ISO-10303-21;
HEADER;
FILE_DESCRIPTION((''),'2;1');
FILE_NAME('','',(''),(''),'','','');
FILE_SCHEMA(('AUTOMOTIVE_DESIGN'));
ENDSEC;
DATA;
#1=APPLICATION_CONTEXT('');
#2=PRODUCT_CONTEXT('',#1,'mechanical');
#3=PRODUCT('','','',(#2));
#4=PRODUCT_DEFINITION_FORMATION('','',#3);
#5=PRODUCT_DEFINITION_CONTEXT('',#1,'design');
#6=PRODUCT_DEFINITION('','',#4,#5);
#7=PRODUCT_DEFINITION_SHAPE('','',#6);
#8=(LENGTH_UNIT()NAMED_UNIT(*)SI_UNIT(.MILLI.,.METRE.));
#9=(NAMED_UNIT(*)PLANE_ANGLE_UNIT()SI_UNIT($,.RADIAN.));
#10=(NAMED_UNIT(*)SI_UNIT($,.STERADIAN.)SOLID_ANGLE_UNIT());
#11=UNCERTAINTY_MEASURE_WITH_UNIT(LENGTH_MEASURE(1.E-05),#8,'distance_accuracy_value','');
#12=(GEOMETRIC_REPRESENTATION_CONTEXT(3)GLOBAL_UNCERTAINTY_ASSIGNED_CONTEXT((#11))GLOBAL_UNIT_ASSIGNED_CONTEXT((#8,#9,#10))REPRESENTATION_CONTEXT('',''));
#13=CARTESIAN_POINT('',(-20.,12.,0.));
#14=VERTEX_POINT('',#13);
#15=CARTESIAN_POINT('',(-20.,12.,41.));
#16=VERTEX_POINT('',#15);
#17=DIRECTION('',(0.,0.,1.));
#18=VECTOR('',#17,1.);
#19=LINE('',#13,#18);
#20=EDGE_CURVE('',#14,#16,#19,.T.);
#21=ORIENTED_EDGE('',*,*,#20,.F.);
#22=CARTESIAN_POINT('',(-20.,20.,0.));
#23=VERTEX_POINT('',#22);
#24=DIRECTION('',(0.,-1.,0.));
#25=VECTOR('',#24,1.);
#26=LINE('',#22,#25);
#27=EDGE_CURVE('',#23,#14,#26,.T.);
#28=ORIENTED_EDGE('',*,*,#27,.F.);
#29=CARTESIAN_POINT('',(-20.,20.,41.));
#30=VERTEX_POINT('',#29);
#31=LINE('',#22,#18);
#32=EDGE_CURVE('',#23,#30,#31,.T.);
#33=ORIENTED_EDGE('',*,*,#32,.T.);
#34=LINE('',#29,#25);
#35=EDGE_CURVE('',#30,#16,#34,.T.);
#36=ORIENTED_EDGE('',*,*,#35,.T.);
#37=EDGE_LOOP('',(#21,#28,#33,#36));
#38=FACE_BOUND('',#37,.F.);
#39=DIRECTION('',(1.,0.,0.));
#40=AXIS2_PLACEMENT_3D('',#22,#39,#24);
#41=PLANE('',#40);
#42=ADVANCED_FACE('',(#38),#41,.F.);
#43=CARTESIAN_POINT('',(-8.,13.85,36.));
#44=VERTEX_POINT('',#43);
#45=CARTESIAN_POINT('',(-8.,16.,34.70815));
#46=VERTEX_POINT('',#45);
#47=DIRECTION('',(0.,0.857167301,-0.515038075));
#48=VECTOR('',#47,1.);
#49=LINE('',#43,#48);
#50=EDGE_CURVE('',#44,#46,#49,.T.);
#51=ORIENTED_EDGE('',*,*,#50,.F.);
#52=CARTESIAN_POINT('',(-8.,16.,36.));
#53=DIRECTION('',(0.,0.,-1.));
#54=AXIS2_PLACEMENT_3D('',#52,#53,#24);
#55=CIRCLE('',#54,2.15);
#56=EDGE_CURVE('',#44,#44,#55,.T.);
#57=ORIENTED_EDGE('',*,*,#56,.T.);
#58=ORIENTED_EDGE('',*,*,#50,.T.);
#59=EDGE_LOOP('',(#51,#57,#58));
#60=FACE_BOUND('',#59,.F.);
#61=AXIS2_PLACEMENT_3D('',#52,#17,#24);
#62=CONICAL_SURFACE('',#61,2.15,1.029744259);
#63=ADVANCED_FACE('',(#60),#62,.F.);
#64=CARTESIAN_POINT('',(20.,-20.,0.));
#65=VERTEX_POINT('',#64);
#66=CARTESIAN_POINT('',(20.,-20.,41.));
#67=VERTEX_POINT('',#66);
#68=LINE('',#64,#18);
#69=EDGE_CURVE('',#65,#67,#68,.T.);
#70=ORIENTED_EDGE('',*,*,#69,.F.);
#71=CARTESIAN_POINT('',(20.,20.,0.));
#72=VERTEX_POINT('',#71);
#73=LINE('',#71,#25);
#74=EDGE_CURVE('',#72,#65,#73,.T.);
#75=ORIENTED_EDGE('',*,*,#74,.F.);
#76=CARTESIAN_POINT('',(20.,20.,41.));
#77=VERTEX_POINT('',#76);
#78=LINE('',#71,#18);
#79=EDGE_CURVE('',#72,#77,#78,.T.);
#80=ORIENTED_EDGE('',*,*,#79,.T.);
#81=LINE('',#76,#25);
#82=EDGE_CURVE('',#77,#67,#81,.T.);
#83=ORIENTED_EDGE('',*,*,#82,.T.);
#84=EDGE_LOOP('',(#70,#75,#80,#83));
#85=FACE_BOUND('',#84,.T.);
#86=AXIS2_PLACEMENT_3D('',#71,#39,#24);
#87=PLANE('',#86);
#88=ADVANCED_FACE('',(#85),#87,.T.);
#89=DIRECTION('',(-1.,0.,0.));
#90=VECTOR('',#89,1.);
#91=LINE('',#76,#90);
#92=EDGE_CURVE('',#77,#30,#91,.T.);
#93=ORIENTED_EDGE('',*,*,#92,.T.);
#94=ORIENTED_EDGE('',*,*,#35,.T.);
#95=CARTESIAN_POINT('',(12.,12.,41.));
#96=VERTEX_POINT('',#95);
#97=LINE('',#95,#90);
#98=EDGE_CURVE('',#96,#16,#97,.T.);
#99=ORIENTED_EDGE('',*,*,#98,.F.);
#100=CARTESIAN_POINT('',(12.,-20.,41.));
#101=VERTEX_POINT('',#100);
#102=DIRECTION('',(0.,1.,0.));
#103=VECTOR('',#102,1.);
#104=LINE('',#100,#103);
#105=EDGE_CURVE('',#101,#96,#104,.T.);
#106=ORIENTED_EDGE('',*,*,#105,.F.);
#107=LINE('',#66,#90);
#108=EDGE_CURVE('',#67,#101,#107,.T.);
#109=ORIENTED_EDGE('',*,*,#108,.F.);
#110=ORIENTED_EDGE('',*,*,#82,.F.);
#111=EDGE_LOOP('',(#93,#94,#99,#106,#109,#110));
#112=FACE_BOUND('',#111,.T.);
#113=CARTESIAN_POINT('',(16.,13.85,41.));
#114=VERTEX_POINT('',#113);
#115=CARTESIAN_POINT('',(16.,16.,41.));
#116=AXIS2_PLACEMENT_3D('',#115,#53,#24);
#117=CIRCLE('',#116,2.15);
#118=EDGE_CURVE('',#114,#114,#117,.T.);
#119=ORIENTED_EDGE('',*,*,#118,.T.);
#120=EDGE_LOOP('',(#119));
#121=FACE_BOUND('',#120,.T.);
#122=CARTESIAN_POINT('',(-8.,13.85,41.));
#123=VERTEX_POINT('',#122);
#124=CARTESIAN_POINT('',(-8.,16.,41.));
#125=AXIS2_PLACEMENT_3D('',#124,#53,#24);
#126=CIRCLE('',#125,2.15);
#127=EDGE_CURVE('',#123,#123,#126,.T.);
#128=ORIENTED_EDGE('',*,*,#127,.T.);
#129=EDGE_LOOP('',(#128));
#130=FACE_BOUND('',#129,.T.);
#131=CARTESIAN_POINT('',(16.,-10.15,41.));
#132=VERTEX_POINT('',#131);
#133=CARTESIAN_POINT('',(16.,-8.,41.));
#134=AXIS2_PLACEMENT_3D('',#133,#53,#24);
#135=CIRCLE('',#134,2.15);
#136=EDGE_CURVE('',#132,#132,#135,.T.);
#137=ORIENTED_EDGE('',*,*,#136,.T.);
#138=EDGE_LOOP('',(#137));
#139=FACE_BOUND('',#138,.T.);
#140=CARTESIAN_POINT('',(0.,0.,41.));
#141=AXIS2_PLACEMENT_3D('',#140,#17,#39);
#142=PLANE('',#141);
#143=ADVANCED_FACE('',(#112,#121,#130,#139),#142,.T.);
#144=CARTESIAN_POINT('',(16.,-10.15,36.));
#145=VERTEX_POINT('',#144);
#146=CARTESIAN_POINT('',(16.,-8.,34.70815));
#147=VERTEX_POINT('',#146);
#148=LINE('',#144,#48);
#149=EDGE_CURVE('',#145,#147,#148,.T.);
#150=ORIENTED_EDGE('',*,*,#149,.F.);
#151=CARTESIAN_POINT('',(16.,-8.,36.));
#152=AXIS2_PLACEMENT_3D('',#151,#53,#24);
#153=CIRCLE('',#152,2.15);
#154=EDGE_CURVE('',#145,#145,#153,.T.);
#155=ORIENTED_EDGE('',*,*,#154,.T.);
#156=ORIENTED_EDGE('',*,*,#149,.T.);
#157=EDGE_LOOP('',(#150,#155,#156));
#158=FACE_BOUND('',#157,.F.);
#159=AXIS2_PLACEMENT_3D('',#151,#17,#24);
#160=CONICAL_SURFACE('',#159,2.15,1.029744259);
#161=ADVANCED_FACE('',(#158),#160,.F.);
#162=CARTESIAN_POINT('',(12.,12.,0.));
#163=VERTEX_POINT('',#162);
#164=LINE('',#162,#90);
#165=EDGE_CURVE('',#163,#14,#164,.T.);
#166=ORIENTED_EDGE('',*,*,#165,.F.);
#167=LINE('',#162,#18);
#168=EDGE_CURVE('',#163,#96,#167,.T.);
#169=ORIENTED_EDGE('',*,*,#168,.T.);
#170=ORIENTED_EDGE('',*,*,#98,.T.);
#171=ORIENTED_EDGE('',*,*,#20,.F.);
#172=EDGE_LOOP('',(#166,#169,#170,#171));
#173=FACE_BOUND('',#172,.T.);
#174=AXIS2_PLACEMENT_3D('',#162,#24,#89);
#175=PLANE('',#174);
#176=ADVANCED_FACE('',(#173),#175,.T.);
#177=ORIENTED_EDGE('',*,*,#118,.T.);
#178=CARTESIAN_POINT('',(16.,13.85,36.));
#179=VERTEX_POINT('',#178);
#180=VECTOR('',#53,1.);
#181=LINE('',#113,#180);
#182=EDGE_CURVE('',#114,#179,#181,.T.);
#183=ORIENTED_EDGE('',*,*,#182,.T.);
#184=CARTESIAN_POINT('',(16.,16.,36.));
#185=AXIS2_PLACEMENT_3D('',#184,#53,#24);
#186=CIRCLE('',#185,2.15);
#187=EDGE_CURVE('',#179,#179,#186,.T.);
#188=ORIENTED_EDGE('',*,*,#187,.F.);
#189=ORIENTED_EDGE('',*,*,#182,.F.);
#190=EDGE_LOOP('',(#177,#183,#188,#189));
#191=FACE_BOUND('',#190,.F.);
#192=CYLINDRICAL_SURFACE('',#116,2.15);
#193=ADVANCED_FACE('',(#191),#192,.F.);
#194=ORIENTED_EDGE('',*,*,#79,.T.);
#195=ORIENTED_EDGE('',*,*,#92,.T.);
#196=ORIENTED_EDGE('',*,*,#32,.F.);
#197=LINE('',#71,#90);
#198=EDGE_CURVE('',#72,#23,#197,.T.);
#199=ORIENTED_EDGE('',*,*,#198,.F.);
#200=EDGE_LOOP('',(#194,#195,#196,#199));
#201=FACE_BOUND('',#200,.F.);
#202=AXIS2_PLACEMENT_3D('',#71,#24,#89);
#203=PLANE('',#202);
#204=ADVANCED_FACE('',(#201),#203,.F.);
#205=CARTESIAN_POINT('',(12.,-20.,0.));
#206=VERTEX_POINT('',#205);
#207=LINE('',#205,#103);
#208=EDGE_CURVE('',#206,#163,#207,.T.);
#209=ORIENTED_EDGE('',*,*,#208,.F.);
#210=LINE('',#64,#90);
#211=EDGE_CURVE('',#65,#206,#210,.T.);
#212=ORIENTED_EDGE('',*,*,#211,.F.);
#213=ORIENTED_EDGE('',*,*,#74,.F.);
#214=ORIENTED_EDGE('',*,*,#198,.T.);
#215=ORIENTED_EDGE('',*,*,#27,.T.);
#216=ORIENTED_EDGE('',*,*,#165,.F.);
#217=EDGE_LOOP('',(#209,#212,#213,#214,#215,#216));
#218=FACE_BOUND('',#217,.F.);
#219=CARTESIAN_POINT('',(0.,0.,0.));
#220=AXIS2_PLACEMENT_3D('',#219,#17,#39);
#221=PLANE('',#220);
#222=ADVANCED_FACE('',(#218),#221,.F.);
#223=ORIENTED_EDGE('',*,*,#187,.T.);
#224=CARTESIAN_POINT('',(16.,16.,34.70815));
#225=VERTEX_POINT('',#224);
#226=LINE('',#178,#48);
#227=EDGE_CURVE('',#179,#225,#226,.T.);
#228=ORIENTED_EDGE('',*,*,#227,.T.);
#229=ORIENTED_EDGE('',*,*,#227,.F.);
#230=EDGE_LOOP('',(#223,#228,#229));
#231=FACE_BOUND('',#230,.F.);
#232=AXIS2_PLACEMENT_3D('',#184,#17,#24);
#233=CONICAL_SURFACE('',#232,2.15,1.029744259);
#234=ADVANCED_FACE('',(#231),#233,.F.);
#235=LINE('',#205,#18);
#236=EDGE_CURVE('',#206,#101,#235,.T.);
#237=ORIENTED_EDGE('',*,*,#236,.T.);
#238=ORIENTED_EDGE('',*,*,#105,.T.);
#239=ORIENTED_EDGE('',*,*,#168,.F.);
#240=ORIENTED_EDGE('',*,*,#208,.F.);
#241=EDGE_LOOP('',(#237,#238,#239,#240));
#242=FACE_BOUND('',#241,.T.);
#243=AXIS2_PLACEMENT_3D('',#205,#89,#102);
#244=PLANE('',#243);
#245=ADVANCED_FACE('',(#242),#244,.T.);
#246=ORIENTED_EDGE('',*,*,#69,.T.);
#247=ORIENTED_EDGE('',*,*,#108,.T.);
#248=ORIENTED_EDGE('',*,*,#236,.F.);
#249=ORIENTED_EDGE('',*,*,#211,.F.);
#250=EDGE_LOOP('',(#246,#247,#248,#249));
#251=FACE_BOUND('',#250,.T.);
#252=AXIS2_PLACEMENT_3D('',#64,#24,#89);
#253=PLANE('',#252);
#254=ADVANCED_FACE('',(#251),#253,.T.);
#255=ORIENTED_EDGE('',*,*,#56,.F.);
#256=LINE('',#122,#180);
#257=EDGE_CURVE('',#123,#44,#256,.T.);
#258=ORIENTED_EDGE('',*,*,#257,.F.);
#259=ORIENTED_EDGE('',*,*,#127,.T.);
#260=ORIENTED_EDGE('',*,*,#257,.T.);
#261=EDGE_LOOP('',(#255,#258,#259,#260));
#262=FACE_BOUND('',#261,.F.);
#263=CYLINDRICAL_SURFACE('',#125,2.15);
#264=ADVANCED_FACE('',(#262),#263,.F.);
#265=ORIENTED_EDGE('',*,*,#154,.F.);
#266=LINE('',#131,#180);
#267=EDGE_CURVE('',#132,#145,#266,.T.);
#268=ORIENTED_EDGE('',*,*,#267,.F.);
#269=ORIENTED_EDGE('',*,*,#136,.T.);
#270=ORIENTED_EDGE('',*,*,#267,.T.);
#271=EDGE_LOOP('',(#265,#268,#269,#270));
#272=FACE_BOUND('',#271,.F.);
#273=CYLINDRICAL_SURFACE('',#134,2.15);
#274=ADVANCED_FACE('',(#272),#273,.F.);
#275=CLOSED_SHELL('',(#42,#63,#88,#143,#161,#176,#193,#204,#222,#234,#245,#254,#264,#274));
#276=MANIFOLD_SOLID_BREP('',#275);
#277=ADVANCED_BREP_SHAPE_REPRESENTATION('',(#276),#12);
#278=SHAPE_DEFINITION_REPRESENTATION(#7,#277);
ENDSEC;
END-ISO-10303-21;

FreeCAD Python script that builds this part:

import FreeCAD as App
import Part
import Sketcher
Q = App.Units.Quantity


def add_polygon(sketch, points):
    """Adds a closed chain of lines whose ends are joined by coincident constraints."""
    first, n = sketch.GeometryCount, len(points)
    for a, b in zip(points, points[1:] + points[:1]):
        sketch.addGeometry(Part.LineSegment(App.Vector(*a, 0), App.Vector(*b, 0)), False)
    for i in range(n):
        sketch.addConstraint(Sketcher.Constraint("Coincident", first + i, 2, first + (i + 1) % n, 1))

doc = App.newDocument("Part")
body = doc.addObject("PartDesign::Body", "Body")

sketch1 = doc.addObject("Sketcher::SketchObject", "Sketch")
body.addObject(sketch1)
sketch1.AttachmentSupport = (doc.XY_Plane, [""])
sketch1.MapMode = "FlatFace"
add_polygon(sketch1, [(20, -20), (20, 20), (-20, 20), (-20, 12), (12, 12), (12, -20)])
sketch1.addConstraint([
    Sketcher.Constraint("Vertical", 0),
    Sketcher.Constraint("Horizontal", 1),
    Sketcher.Constraint("Vertical", 2),
    Sketcher.Constraint("Horizontal", 3),
    Sketcher.Constraint("Vertical", 4),
    Sketcher.Constraint("Horizontal", 5),
    Sketcher.Constraint("Symmetric", 1, 2, 5, 2, -1, 1),
    Sketcher.Constraint("Equal", 1, 0),
    Sketcher.Constraint("Equal", 5, 2),
    Sketcher.Constraint("DistanceX", 1, 2, 1, 1, Q("40 mm")),
    Sketcher.Constraint("DistanceX", 5, 1, 5, 2, Q("8 mm")),
])
pad1 = doc.addObject("PartDesign::Pad", "Pad")
body.addObject(pad1)
pad1.Profile = sketch1
pad1.Length = 41

sketch2 = doc.addObject("Sketcher::SketchObject", "Sketch001")
body.addObject(sketch2)
sketch2.AttachmentSupport = (doc.XY_Plane, [""])
sketch2.MapMode = "FlatFace"
sketch2.AttachmentOffset = App.Placement(App.Vector(0, 0, 41), App.Rotation())
sketch2.addGeometry([
    Part.Circle(App.Vector(-8, 16, 0), App.Vector(0, 0, 1), 2.1),
    Part.Circle(App.Vector(16, 16, 0), App.Vector(0, 0, 1), 2.1),
    Part.Circle(App.Vector(16, -8, 0), App.Vector(0, 0, 1), 2.1),
], False)
sketch2.addConstraint([
    Sketcher.Constraint("Equal", 0, 1),
    Sketcher.Constraint("Equal", 1, 2),
    Sketcher.Constraint("Horizontal", 0, 3, 1, 3),
    Sketcher.Constraint("Vertical", 1, 3, 2, 3),
    Sketcher.Constraint("Diameter", 0, Q("4.3 mm")),
    Sketcher.Constraint("DistanceX", 0, 3, -1, 1, Q("8 mm")),
    Sketcher.Constraint("DistanceY", -1, 1, 0, 3, Q("16 mm")),
    Sketcher.Constraint("DistanceX", -1, 1, 1, 3, Q("16 mm")),
    Sketcher.Constraint("DistanceY", 2, 3, -1, 1, Q("8 mm")),
])
doc.recompute()
hole = doc.addObject("PartDesign::Hole", "Hole")
body.addObject(hole)
hole.Profile = sketch2
hole.ThreadType = "None"
hole.Diameter = 4.3
hole.DepthType = "Dimension"
hole.Depth = 5
hole.DrillPoint = "Angled"
hole.DrillPointAngle = 118

doc.recompute()
